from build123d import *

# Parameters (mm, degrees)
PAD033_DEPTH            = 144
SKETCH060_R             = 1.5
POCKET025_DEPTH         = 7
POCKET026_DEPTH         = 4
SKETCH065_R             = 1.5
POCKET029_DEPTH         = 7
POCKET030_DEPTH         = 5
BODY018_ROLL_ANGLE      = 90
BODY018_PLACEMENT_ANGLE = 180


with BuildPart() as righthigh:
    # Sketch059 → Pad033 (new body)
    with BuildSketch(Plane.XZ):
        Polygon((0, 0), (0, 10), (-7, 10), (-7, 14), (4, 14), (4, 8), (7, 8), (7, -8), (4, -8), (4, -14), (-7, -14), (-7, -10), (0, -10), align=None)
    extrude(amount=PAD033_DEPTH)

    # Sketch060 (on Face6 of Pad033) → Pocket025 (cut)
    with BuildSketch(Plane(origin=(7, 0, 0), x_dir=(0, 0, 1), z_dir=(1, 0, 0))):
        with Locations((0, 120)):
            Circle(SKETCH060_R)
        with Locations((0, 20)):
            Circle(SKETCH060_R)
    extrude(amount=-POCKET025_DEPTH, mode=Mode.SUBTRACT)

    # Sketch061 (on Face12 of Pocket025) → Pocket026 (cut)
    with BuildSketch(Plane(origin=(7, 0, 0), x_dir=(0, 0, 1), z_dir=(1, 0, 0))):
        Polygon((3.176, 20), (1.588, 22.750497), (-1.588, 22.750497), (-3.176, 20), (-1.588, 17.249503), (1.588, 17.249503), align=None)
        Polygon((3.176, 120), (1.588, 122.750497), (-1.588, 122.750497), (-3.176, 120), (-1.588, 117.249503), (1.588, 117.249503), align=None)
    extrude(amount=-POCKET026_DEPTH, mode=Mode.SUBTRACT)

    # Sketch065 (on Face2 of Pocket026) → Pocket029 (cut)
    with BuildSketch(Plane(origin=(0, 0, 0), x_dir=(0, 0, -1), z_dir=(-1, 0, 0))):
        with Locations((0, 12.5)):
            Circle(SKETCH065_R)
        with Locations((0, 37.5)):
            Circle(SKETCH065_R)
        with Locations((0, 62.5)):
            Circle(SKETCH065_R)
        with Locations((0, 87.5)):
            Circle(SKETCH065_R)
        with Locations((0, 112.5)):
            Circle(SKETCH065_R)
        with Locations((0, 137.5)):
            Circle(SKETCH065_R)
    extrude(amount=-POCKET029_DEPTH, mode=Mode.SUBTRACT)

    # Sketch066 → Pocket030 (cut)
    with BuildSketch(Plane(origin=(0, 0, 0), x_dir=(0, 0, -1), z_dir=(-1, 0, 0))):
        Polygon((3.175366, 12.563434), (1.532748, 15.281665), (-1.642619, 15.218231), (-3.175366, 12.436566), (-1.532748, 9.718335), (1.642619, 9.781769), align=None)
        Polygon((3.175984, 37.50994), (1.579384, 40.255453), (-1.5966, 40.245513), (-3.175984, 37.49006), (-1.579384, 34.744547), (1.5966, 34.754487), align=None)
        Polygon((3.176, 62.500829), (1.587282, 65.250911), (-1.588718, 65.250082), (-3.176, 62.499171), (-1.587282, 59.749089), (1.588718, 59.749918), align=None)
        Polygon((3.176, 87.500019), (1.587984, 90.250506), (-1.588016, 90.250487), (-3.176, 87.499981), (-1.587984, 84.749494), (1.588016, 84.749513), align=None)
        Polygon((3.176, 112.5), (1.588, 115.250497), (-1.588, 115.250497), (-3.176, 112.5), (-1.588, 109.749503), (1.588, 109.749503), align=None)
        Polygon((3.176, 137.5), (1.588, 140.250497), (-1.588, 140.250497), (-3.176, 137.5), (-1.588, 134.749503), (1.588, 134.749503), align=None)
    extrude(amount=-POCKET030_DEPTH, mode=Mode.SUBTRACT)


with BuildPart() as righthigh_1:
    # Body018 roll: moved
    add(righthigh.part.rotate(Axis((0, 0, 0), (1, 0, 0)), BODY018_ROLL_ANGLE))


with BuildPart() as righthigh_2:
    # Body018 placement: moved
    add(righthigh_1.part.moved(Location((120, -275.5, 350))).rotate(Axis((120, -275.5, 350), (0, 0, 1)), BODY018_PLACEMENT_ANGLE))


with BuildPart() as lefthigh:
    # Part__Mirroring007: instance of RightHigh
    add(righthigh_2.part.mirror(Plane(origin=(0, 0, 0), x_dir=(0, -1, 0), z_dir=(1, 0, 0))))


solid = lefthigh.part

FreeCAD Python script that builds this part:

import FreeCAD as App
import Part
import Sketcher

V = App.Vector
Q = App.Units.Quantity

doc = App.newDocument("Part")
body = doc.addObject("PartDesign::Body", "Body")

sketch1 = body.newObject("Sketcher::SketchObject", "Sketch")
sketch1.AttachmentSupport = (doc.getObject("XZ_Plane"), [""])
sketch1.MapMode = "FlatFace"
sketch1.addGeometry([
    Part.LineSegment(V(0, 10, 0), V(0, -10, 0)),
    Part.LineSegment(V(0, -10, 0), V(-7, -10, 0)),
    Part.LineSegment(V(-7, -10, 0), V(-7, -14, 0)),
    Part.LineSegment(V(-7, -14, 0), V(4, -14, 0)),
    Part.LineSegment(V(4, -14, 0), V(4, -8, 0)),
    Part.LineSegment(V(4, -8, 0), V(7, -8, 0)),
    Part.LineSegment(V(7, -8, 0), V(7, 8, 0)),
    Part.LineSegment(V(7, 8, 0), V(4, 8, 0)),
    Part.LineSegment(V(4, 8, 0), V(4, 14, 0)),
    Part.LineSegment(V(4, 14, 0), V(-7, 14, 0)),
    Part.LineSegment(V(-7, 14, 0), V(-7, 10, 0)),
    Part.LineSegment(V(-7, 10, 0), V(0, 10, 0)),
], False)
sketch1.addConstraint([
    Sketcher.Constraint("Coincident", 0, 2, 1, 1),
    Sketcher.Constraint("Coincident", 1, 2, 2, 1),
    Sketcher.Constraint("Coincident", 2, 2, 3, 1),
    Sketcher.Constraint("Coincident", 3, 2, 4, 1),
    Sketcher.Constraint("Coincident", 4, 2, 5, 1),
    Sketcher.Constraint("Coincident", 5, 2, 6, 1),
    Sketcher.Constraint("Coincident", 6, 2, 7, 1),
    Sketcher.Constraint("Coincident", 7, 2, 8, 1),
    Sketcher.Constraint("Coincident", 8, 2, 9, 1),
    Sketcher.Constraint("Coincident", 9, 2, 10, 1),
    Sketcher.Constraint("Coincident", 10, 2, 11, 1),
    Sketcher.Constraint("Coincident", 11, 2, 0, 1),
    Sketcher.Constraint("Vertical", 0),
    Sketcher.Constraint("Horizontal", 1),
    Sketcher.Constraint("Vertical", 2),
    Sketcher.Constraint("Horizontal", 3),
    Sketcher.Constraint("Vertical", 4),
    Sketcher.Constraint("Horizontal", 5),
    Sketcher.Constraint("Vertical", 6),
    Sketcher.Constraint("Horizontal", 7),
    Sketcher.Constraint("Vertical", 8),
    Sketcher.Constraint("Horizontal", 9),
    Sketcher.Constraint("Vertical", 10),
    Sketcher.Constraint("Horizontal", 11),
    Sketcher.Constraint("Symmetric", 0, 2, 11, 2, -1, 1),
    Sketcher.Constraint("Symmetric", 4, 2, 7, 2, -1),
    Sketcher.Constraint("Symmetric", 2, 2, 9, 2, -1),
    Sketcher.Constraint("DistanceX", 1, 2, 1, 1, 7.0),
    Sketcher.Constraint("DistanceX", 3, 1, 3, 2, 11.0),
    Sketcher.Constraint("DistanceX", 5, 1, 5, 2, 3.0),
    Sketcher.Constraint("DistanceY", 0, 2, 0, 1, 20.0),
    Sketcher.Constraint("DistanceY", 2, 2, 2, 1, 4.0),
    Sketcher.Constraint("DistanceY", 4, 1, 4, 2, 6.0),
])
pad1 = body.newObject("PartDesign::Pad", "Pad")
pad1.Profile = sketch1
pad1.Length = 144

sketch2 = body.newObject("Sketcher::SketchObject", "Sketch001")
sketch2.AttachmentSupport = (doc.getObject("YZ_Plane"), [""])
sketch2.MapMode = "FlatFace"
sketch2.AttachmentOffset = App.Placement(V(0, 0, 7), App.Rotation())
sketch2.addGeometry([
    Part.Circle(V(-120, 0, 0), V(0, 0, 1), 1.5),
    Part.Circle(V(-20, 0, 0), V(0, 0, 1), 1.5),
], False)
sketch2.addConstraint([
    Sketcher.Constraint("Equal", 0, 1),
    Sketcher.Constraint("PointOnObject", 0, 3, -1),
    Sketcher.Constraint("PointOnObject", 1, 3, -1),
    Sketcher.Constraint("Diameter", 0, 3.0),
    Sketcher.Constraint("DistanceX", 0, 3, -1, 1, 120.0),
    Sketcher.Constraint("DistanceX", 1, 3, -1, 1, 20.0),
])
pocket1 = body.newObject("PartDesign::Pocket", "Pocket")
pocket1.Profile = sketch2
pocket1.Length = 7

sketch3 = body.newObject("Sketcher::SketchObject", "Sketch002")
sketch3.AttachmentSupport = (doc.getObject("YZ_Plane"), [""])
sketch3.MapMode = "FlatFace"
sketch3.AttachmentOffset = App.Placement(V(0, 0, 7), App.Rotation())
sketch3.addGeometry([
    Part.LineSegment(V(-20, 3.2, 0), V(-22.8, 1.6, 0)),
    Part.LineSegment(V(-22.8, 1.6, 0), V(-22.8, -1.6, 0)),
    Part.LineSegment(V(-22.8, -1.6, 0), V(-20, -3.2, 0)),
    Part.LineSegment(V(-20, -3.2, 0), V(-17.2, -1.6, 0)),
    Part.LineSegment(V(-17.2, -1.6, 0), V(-17.2, 1.6, 0)),
    Part.LineSegment(V(-17.2, 1.6, 0), V(-20, 3.2, 0)),
    Part.LineSegment(V(-120, 3.2, 0), V(-122.8, 1.6, 0)),
    Part.LineSegment(V(-122.8, 1.6, 0), V(-122.8, -1.6, 0)),
    Part.LineSegment(V(-122.8, -1.6, 0), V(-120, -3.2, 0)),
    Part.LineSegment(V(-120, -3.2, 0), V(-117.2, -1.6, 0)),
    Part.LineSegment(V(-117.2, -1.6, 0), V(-117.2, 1.6, 0)),
    Part.LineSegment(V(-117.2, 1.6, 0), V(-120, 3.2, 0)),
], False)
sketch3.addConstraint([
    Sketcher.Constraint("Coincident", 0, 2, 1, 1),
    Sketcher.Constraint("Coincident", 1, 2, 2, 1),
    Sketcher.Constraint("Coincident", 2, 2, 3, 1),
    Sketcher.Constraint("Coincident", 3, 2, 4, 1),
    Sketcher.Constraint("Coincident", 4, 2, 5, 1),
    Sketcher.Constraint("Coincident", 5, 2, 0, 1),
    Sketcher.Constraint("Coincident", 6, 2, 7, 1),
    Sketcher.Constraint("Coincident", 7, 2, 8, 1),
    Sketcher.Constraint("Coincident", 8, 2, 9, 1),
    Sketcher.Constraint("Coincident", 9, 2, 10, 1),
    Sketcher.Constraint("Coincident", 10, 2, 11, 1),
    Sketcher.Constraint("Coincident", 11, 2, 6, 1),
    Sketcher.Constraint("Vertical", 1),
    Sketcher.Constraint("Vertical", 4),
    Sketcher.Constraint("Vertical", 7),
    Sketcher.Constraint("Vertical", 10),
    Sketcher.Constraint("Symmetric", 2, 2, 5, 2, -1),
    Sketcher.Constraint("Symmetric", 8, 2, 11, 2, -1),
    Sketcher.Constraint("Parallel", 0, 3),
    Sketcher.Constraint("Parallel", 2, 5),
    Sketcher.Constraint("Parallel", 3, 6),
    Sketcher.Constraint("Parallel", 5, 8),
    Sketcher.Constraint("Parallel", 6, 9),
    Sketcher.Constraint("Parallel", 8, 11),
    Sketcher.Constraint("Horizontal", 1, 2, 3, 2),
    Sketcher.Constraint("Horizontal", 0, 2, 4, 2),
    Sketcher.Constraint("Horizontal", 4, 2, 6, 2),
    Sketcher.Constraint("Horizontal", 2, 2, 8, 2),
    Sketcher.Constraint("Horizontal", 7, 2, 9, 2),
    Sketcher.Constraint("Angle", 0, Q("-150.000003 deg")),
    Sketcher.Constraint("DistanceX", 2, 2, -1, 1, 20.0),
    Sketcher.Constraint("DistanceX", 8, 2, -1, 1, 120.0),
    Sketcher.Constraint("DistanceY", 1, 2, 1, 1, 3.176),
    Sketcher.Constraint("Distance", 0, 3.176),
])
pocket2 = body.newObject("PartDesign::Pocket", "Pocket001")
pocket2.Profile = sketch3
pocket2.Length = 4

sketch4 = body.newObject("Sketcher::SketchObject", "Sketch003")
sketch4.AttachmentSupport = (doc.getObject("YZ_Plane"), [""])
sketch4.MapMode = "FlatFace"
sketch4.addGeometry([
    Part.Circle(V(-12.5, 0, 0), V(0, 0, 1), 1.5),
    Part.Circle(V(-37.5, 0, 0), V(0, 0, 1), 1.5),
    Part.Circle(V(-62.5, 0, 0), V(0, 0, 1), 1.5),
    Part.Circle(V(-87.5, 0, 0), V(0, 0, 1), 1.5),
    Part.Circle(V(-112.5, 0, 0), V(0, 0, 1), 1.5),
    Part.Circle(V(-137.5, 0, 0), V(0, 0, 1), 1.5),
], False)
sketch4.addConstraint([
    Sketcher.Constraint("Equal", 0, 1),
    Sketcher.Constraint("Equal", 1, 2),
    Sketcher.Constraint("Equal", 2, 3),
    Sketcher.Constraint("Equal", 3, 4),
    Sketcher.Constraint("Equal", 4, 5),
    Sketcher.Constraint("PointOnObject", 0, 3, -1),
    Sketcher.Constraint("PointOnObject", 1, 3, -1),
    Sketcher.Constraint("PointOnObject", 2, 3, -1),
    Sketcher.Constraint("PointOnObject", 3, 3, -1),
    Sketcher.Constraint("PointOnObject", 4, 3, -1),
    Sketcher.Constraint("PointOnObject", 5, 3, -1),
    Sketcher.Constraint("Diameter", 0, 3.0),
    Sketcher.Constraint("DistanceX", 1, 3, 0, 3, 25.0),
    Sketcher.Constraint("DistanceX", 2, 3, 1, 3, 25.0),
    Sketcher.Constraint("DistanceX", 3, 3, 2, 3, 25.0),
    Sketcher.Constraint("DistanceX", 4, 3, 3, 3, 25.0),
    Sketcher.Constraint("DistanceX", 5, 3, 4, 3, 25.0),
    Sketcher.Constraint("DistanceX", 0, 3, -1, 1, 12.5),
])
pocket3 = body.newObject("PartDesign::Pocket", "Pocket002")
pocket3.Profile = sketch4
pocket3.Length = 7
pocket3.Reversed = True

sketch5 = body.newObject("Sketcher::SketchObject", "Sketch004")
sketch5.AttachmentSupport = (doc.getObject("YZ_Plane"), [""])
sketch5.MapMode = "FlatFace"
sketch5.addGeometry([
    Part.LineSegment(V(-12.6, -3.2, 0), V(-15.3, -1.5, 0)),
    Part.LineSegment(V(-15.3, -1.5, 0), V(-15.2, 1.6, 0)),
    Part.LineSegment(V(-15.2, 1.6, 0), V(-12.4, 3.2, 0)),
    Part.LineSegment(V(-12.4, 3.2, 0), V(-9.7, 1.5, 0)),
    Part.LineSegment(V(-9.7, 1.5, 0), V(-9.8, -1.6, 0)),
    Part.LineSegment(V(-9.8, -1.6, 0), V(-12.6, -3.2, 0)),
    Part.LineSegment(V(-37.5, -3.2, 0), V(-40.3, -1.6, 0)),
    Part.LineSegment(V(-40.3, -1.6, 0), V(-40.2, 1.6, 0)),
    Part.LineSegment(V(-40.2, 1.6, 0), V(-37.5, 3.2, 0)),
    Part.LineSegment(V(-37.5, 3.2, 0), V(-34.7, 1.6, 0)),
    Part.LineSegment(V(-34.7, 1.6, 0), V(-34.8, -1.6, 0)),
    Part.LineSegment(V(-34.8, -1.6, 0), V(-37.5, -3.2, 0)),
    Part.LineSegment(V(-62.5, -3.2, 0), V(-65.3, -1.6, 0)),
    Part.LineSegment(V(-65.3, -1.6, 0), V(-65.3, 1.6, 0)),
    Part.LineSegment(V(-65.3, 1.6, 0), V(-62.5, 3.2, 0)),
    Part.LineSegment(V(-62.5, 3.2, 0), V(-59.7, 1.6, 0)),
    Part.LineSegment(V(-59.7, 1.6, 0), V(-59.7, -1.6, 0)),
    Part.LineSegment(V(-59.7, -1.6, 0), V(-62.5, -3.2, 0)),
    Part.LineSegment(V(-87.5, -3.2, 0), V(-90.3, -1.6, 0)),
    Part.LineSegment(V(-90.3, -1.6, 0), V(-90.3, 1.6, 0)),
    Part.LineSegment(V(-90.3, 1.6, 0), V(-87.5, 3.2, 0)),
    Part.LineSegment(V(-87.5, 3.2, 0), V(-84.7, 1.6, 0)),
    Part.LineSegment(V(-84.7, 1.6, 0), V(-84.7, -1.6, 0)),
    Part.LineSegment(V(-84.7, -1.6, 0), V(-87.5, -3.2, 0)),
    Part.LineSegment(V(-112.5, -3.2, 0), V(-115.3, -1.6, 0)),
    Part.LineSegment(V(-115.3, -1.6, 0), V(-115.3, 1.6, 0)),
    Part.LineSegment(V(-115.3, 1.6, 0), V(-112.5, 3.2, 0)),
    Part.LineSegment(V(-112.5, 3.2, 0), V(-109.7, 1.6, 0)),
    Part.LineSegment(V(-109.7, 1.6, 0), V(-109.7, -1.6, 0)),
    Part.LineSegment(V(-109.7, -1.6, 0), V(-112.5, -3.2, 0)),
    Part.LineSegment(V(-137.5, -3.2, 0), V(-140.3, -1.6, 0)),
    Part.LineSegment(V(-140.3, -1.6, 0), V(-140.3, 1.6, 0)),
    Part.LineSegment(V(-140.3, 1.6, 0), V(-137.5, 3.2, 0)),
    Part.LineSegment(V(-137.5, 3.2, 0), V(-134.7, 1.6, 0)),
    Part.LineSegment(V(-134.7, 1.6, 0), V(-134.7, -1.6, 0)),
    Part.LineSegment(V(-134.7, -1.6, 0), V(-137.5, -3.2, 0)),
], False)
sketch5.addConstraint([
    Sketcher.Constraint("Coincident", 0, 2, 1, 1),
    Sketcher.Constraint("Coincident", 1, 2, 2, 1),
    Sketcher.Constraint("Coincident", 2, 2, 3, 1),
    Sketcher.Constraint("Coincident", 3, 2, 4, 1),
    Sketcher.Constraint("Coincident", 4, 2, 5, 1),
    Sketcher.Constraint("Coincident", 5, 2, 0, 1),
    Sketcher.Constraint("Coincident", 6, 2, 7, 1),
    Sketcher.Constraint("Coincident", 7, 2, 8, 1),
    Sketcher.Constraint("Coincident", 8, 2, 9, 1),
    Sketcher.Constraint("Coincident", 9, 2, 10, 1),
    Sketcher.Constraint("Coincident", 10, 2, 11, 1),
    Sketcher.Constraint("Coincident", 11, 2, 6, 1),
    Sketcher.Constraint("Coincident", 12, 2, 13, 1),
    Sketcher.Constraint("Coincident", 13, 2, 14, 1),
    Sketcher.Constraint("Coincident", 14, 2, 15, 1),
    Sketcher.Constraint("Coincident", 15, 2, 16, 1),
    Sketcher.Constraint("Coincident", 16, 2, 17, 1),
    Sketcher.Constraint("Coincident", 17, 2, 12, 1),
    Sketcher.Constraint("Coincident", 18, 2, 19, 1),
    Sketcher.Constraint("Coincident", 19, 2, 20, 1),
    Sketcher.Constraint("Coincident", 20, 2, 21, 1),
    Sketcher.Constraint("Coincident", 21, 2, 22, 1),
    Sketcher.Constraint("Coincident", 22, 2, 23, 1),
    Sketcher.Constraint("Coincident", 23, 2, 18, 1),
    Sketcher.Constraint("Coincident", 24, 2, 25, 1),
    Sketcher.Constraint("Coincident", 25, 2, 26, 1),
    Sketcher.Constraint("Coincident", 26, 2, 27, 1),
    Sketcher.Constraint("Coincident", 27, 2, 28, 1),
    Sketcher.Constraint("Coincident", 28, 2, 29, 1),
    Sketcher.Constraint("Coincident", 29, 2, 24, 1),
    Sketcher.Constraint("Coincident", 30, 2, 31, 1),
    Sketcher.Constraint("Coincident", 31, 2, 32, 1),
    Sketcher.Constraint("Coincident", 32, 2, 33, 1),
    Sketcher.Constraint("Coincident", 33, 2, 34, 1),
    Sketcher.Constraint("Coincident", 34, 2, 35, 1),
    Sketcher.Constraint("Coincident", 35, 2, 30, 1),
    Sketcher.Constraint("Vertical", 25),
    Sketcher.Constraint("Vertical", 28),
    Sketcher.Constraint("Vertical", 31),
    Sketcher.Constraint("Vertical", 34),
    Sketcher.Constraint("Symmetric", 26, 2, 29, 2, -1),
    Sketcher.Constraint("Symmetric", 32, 2, 35, 2, -1),
    Sketcher.Constraint("Parallel", 0, 3),
    Sketcher.Constraint("Parallel", 1, 4),
    Sketcher.Constraint("Parallel", 2, 5),
    Sketcher.Constraint("Parallel", 6, 9),
    Sketcher.Constraint("Parallel", 7, 10),
    Sketcher.Constraint("Parallel", 8, 11),
    Sketcher.Constraint("Parallel", 12, 15),
    Sketcher.Constraint("Parallel", 13, 16),
    Sketcher.Constraint("Parallel", 14, 17),
    Sketcher.Constraint("Parallel", 18, 21),
    Sketcher.Constraint("Parallel", 19, 22),
    Sketcher.Constraint("Parallel", 20, 23),
    Sketcher.Constraint("Parallel", 24, 27),
    Sketcher.Constraint("Parallel", 26, 29),
    Sketcher.Constraint("Parallel", 27, 30),
    Sketcher.Constraint("Parallel", 29, 32),
    Sketcher.Constraint("Parallel", 30, 33),
    Sketcher.Constraint("Parallel", 32, 35),
    Sketcher.Constraint("Horizontal", 14, 2, 20, 2),
    Sketcher.Constraint("Horizontal", 17, 2, 23, 2),
    Sketcher.Constraint("Horizontal", 20, 2, 26, 2),
    Sketcher.Constraint("Horizontal", 25, 2, 27, 2),
    Sketcher.Constraint("Horizontal", 24, 2, 28, 2),
    Sketcher.Constraint("Horizontal", 23, 2, 29, 2),
    Sketcher.Constraint("Horizontal", 28, 2, 30, 2),
    Sketcher.Constraint("Horizontal", 26, 2, 32, 2),
    Sketcher.Constraint("Horizontal", 31, 2, 33, 2),
    Sketcher.Constraint("Equal", 0, 1),
    Sketcher.Constraint("Equal", 1, 2),
    Sketcher.Constraint("Equal", 2, 3),
    Sketcher.Constraint("Equal", 5, 6),
    Sketcher.Constraint("Equal", 6, 7),
    Sketcher.Constraint("Equal", 7, 8),
    Sketcher.Constraint("Equal", 8, 9),
    Sketcher.Constraint("Equal", 11, 12),
    Sketcher.Constraint("Equal", 12, 13),
    Sketcher.Constraint("Equal", 13, 14),
    Sketcher.Constraint("Equal", 14, 15),
    Sketcher.Constraint("Equal", 17, 18),
    Sketcher.Constraint("Equal", 18, 19),
    Sketcher.Constraint("Equal", 19, 20),
    Sketcher.Constraint("Equal", 20, 21),
    Sketcher.Constraint("Equal", 23, 24),
    Sketcher.Constraint("Angle", 24, Q("150.000003 deg")),
    Sketcher.Constraint("DistanceX", 30, 2, 24, 2, 25.0),
    Sketcher.Constraint("DistanceX", 26, 2, -1, 1, 112.5),
    Sketcher.Constraint("DistanceY", 25, 1, 25, 2, 3.176),
    Sketcher.Constraint("Distance", 0, 3.176),
    Sketcher.Constraint("DistanceY", -1, 1, 7, 2, 1.5966),
    Sketcher.Constraint("DistanceY", 10, 2, -1, 1, 1.5966),
    Sketcher.Constraint("DistanceX", 0, 2, 2, 2, 2.845099),
    Sketcher.Constraint("DistanceY", 9, 2, 8, 2, 1.5966),
    Sketcher.Constraint("DistanceY", 12, 2, 6, 2, 0.007898),
    Sketcher.Constraint("DistanceY", 18, 2, 12, 2, 0.000702),
    Sketcher.Constraint("DistanceX", 20, 2, 13, 2, 22.249899),
    Sketcher.Constraint("DistanceX", 22, 2, 12, 2, 19.498602),
    Sketcher.Constraint("DistanceX", 1, 2, -1, 1, 15.218231),
    Sketcher.Constraint("DistanceY", -1, 1, 1, 2, 1.642619),
    Sketcher.Constraint("DistanceX", 4, 2, -1, 1, 9.781769),
    Sketcher.Constraint("DistanceY", 4, 2, -1, 1, 1.642619),
    Sketcher.Constraint("DistanceX", 8, 2, -1, 1, 37.49006),
    Sketcher.Constraint("DistanceX", 11, 2, -1, 1, 37.50994),
    Sketcher.Constraint("DistanceX", 12, 2, -1, 1, 65.250911),
    Sketcher.Constraint("DistanceX", 14, 2, -1, 1, 62.499171),
])
pocket4 = body.newObject("PartDesign::Pocket", "Pocket003")
pocket4.Profile = sketch5
pocket4.Length = 5
pocket4.Reversed = True
body2 = doc.addObject("PartDesign::Body", "Body001")
doc.recompute()

body.Placement = App.Placement(V(0, 0, 0), App.Rotation(V(1, 0, 0), 90))
boolean = body2.newObject("PartDesign::Boolean", "Boolean")
boolean.Type = "Fuse"
boolean.addObjects([body])
body3 = doc.addObject("PartDesign::Body", "Body002")
doc.recompute()

body2.Placement = App.Placement(V(120, -275.5, 350), App.Rotation(V(0, 0, 1), 180))
boolean2 = body3.newObject("PartDesign::Boolean", "Boolean001")
boolean2.Type = "Fuse"
boolean2.addObjects([body2])
body4 = doc.addObject("PartDesign::Body", "Body003")
doc.recompute()

mirroring = doc.addObject("Part::Mirroring", "Mirroring")
mirroring.Source = body3
mirroring.Base = V(0, 0, 0)
mirroring.Normal = V(1, 0, 0)
body4.BaseFeature = mirroring
doc.recompute()
body3.Visibility = False
mirroring.Visibility = False

doc.recompute()
